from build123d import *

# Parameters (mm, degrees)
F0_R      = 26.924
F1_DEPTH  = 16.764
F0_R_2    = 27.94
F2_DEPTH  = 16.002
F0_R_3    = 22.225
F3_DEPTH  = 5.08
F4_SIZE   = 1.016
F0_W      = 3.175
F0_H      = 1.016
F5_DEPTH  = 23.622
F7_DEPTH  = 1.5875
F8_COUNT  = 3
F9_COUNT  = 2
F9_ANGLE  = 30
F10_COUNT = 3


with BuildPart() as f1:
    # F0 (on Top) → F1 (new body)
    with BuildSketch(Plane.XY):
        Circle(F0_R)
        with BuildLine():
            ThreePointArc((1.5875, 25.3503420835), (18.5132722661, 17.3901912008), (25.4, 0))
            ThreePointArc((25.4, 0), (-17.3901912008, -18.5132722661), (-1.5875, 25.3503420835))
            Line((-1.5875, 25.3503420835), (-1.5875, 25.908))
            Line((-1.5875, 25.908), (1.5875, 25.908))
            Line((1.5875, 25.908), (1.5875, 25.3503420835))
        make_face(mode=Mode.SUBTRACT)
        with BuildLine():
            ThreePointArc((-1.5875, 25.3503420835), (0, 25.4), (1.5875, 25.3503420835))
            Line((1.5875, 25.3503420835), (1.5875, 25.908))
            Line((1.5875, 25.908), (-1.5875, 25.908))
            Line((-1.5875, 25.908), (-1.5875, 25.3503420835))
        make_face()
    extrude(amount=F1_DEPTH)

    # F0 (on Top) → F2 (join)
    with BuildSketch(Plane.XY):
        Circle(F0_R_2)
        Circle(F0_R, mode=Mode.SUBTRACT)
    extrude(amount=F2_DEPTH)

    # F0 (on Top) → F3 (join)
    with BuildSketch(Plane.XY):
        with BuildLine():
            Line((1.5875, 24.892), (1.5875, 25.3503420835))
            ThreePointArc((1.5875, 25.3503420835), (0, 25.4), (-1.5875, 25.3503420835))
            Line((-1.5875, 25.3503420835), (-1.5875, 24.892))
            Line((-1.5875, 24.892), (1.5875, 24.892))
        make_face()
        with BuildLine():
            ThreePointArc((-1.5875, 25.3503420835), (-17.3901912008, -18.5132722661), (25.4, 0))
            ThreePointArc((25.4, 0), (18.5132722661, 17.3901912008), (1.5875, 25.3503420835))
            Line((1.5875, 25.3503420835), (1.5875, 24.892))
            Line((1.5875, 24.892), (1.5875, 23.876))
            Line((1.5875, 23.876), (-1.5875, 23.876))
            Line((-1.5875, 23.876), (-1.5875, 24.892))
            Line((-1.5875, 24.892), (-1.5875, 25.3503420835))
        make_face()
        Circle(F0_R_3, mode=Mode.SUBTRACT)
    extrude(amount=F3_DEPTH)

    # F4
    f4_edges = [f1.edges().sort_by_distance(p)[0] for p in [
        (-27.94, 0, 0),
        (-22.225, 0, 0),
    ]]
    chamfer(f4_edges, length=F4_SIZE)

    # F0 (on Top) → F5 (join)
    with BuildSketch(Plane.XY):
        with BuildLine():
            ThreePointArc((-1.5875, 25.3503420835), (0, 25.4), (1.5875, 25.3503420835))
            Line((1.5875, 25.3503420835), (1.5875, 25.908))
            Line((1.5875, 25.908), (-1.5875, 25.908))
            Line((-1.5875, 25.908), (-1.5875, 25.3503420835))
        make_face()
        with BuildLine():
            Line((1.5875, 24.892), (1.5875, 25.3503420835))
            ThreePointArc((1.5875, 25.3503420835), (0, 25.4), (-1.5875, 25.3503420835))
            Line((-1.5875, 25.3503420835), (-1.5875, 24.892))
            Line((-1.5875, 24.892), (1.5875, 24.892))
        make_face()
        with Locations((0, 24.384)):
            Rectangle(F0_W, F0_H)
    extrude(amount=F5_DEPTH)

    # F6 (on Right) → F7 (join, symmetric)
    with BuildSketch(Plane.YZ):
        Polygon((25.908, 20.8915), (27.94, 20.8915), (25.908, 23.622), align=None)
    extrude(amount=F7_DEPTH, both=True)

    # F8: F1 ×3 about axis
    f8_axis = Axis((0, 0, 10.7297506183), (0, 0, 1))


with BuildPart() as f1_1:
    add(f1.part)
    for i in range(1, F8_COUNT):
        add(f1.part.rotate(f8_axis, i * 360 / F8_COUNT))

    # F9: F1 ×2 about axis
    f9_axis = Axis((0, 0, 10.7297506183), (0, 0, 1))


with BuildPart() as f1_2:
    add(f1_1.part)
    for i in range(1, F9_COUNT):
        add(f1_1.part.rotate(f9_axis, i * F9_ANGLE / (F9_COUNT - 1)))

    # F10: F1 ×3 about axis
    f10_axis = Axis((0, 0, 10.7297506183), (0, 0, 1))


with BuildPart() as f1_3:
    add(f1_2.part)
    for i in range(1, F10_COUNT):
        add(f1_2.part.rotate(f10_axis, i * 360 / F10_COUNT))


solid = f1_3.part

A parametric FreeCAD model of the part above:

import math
import FreeCAD as App
import Part
import Sketcher
from FreeCAD import Vector
Q = App.Units.Quantity


def edges_at(feature, points):
    """Names of the edges that pass closest to the given points."""
    edges = feature.Shape.Edges
    near = lambda p: min(range(len(edges)), key=lambda i: edges[i].distToShape(Part.Vertex(*p))[0])
    return sorted({f"Edge{near(p) + 1}" for p in points})


def add_polygon(sketch, points):
    """Adds a closed chain of lines whose ends are joined by coincident constraints."""
    first, n = sketch.GeometryCount, len(points)
    for a, b in zip(points, points[1:] + points[:1]):
        sketch.addGeometry(Part.LineSegment(App.Vector(*a, 0), App.Vector(*b, 0)), False)
    for i in range(n):
        sketch.addConstraint(Sketcher.Constraint("Coincident", first + i, 2, first + (i + 1) % n, 1))

doc = App.newDocument("Part")
body = doc.addObject("PartDesign::Body", "Body")

# Sketch on XY plane
sketch1 = doc.addObject("Sketcher::SketchObject", "Sketch")
body.addObject(sketch1)
sketch1.AttachmentSupport = (doc.XY_Plane, [""])
sketch1.MapMode = "FlatFace"
sketch1.addGeometry(Part.Circle(Vector(0, 0, 0), Vector(0, 0, 1), 26.924), False)
sketch1.addGeometry(Part.ArcOfCircle(Part.Circle(Vector(0, 0, 0), Vector(0, 0, 1), 25.4), math.radians(93.583322), math.radians(360)), False)
sketch1.addGeometry(Part.ArcOfCircle(Part.Circle(Vector(0, 0, 0), Vector(0, 0, 1), 25.4), math.radians(86.416678), math.radians(93.583322)), False)
sketch1.addGeometry(Part.ArcOfCircle(Part.Circle(Vector(0, 0, 0), Vector(0, 0, 1), 25.4), math.radians(0), math.radians(86.416678)), False)
sketch1.addConstraint(Sketcher.Constraint("Tangent", 1, 1, 2, 2))
sketch1.addConstraint(Sketcher.Constraint("Tangent", 2, 1, 3, 2))
sketch1.addConstraint(Sketcher.Constraint("Tangent", 3, 1, 1, 2))
sketch1.addConstraint(Sketcher.Constraint("Coincident", 0, 3, -1, 1))
sketch1.addConstraint(Sketcher.Constraint("Coincident", 1, 3, -1, 1))
sketch1.addConstraint(Sketcher.Constraint("PointOnObject", 3, 1, -1))
sketch1.addConstraint(Sketcher.Constraint("Horizontal", 1, 1, 2, 1))
sketch1.addConstraint(Sketcher.Constraint("Radius", 1, Q("1 in")))
sketch1.addConstraint(Sketcher.Constraint("Diameter", 0, Q("2.12 in")))
sketch1.addConstraint(Sketcher.Constraint("DistanceX", 1, 1, -1, 1, Q("0.0625 in")))
pad1 = doc.addObject("PartDesign::Pad", "Pad")
body.addObject(pad1)
pad1.Profile = sketch1
pad1.Length = Q("0.66 in")

# Sketch on XY plane
sketch2 = doc.addObject("Sketcher::SketchObject", "Sketch001")
body.addObject(sketch2)
sketch2.AttachmentSupport = (doc.XY_Plane, [""])
sketch2.MapMode = "FlatFace"
sketch2.addGeometry(Part.Circle(Vector(0, 0, 0), Vector(0, 0, 1), 27.94), False)
sketch2.addGeometry(Part.Circle(Vector(0, 0, 0), Vector(0, 0, 1), 26.924), False)
sketch2.addConstraint(Sketcher.Constraint("Coincident", 0, 3, -1, 1))
sketch2.addConstraint(Sketcher.Constraint("Coincident", 1, 3, -1, 1))
sketch2.addConstraint(Sketcher.Constraint("Diameter", 0, Q("2.2 in")))
sketch2.addConstraint(Sketcher.Constraint("Diameter", 1, Q("2.12 in")))
pad2 = doc.addObject("PartDesign::Pad", "Pad001")
body.addObject(pad2)
pad2.Profile = sketch2
pad2.Length = Q("0.63 in")

# Sketch on XY plane
sketch3 = doc.addObject("Sketcher::SketchObject", "Sketch002")
body.addObject(sketch3)
sketch3.AttachmentSupport = (doc.XY_Plane, [""])
sketch3.MapMode = "FlatFace"
sketch3.addGeometry(Part.ArcOfCircle(Part.Circle(Vector(0, 0, 0), Vector(0, 0, 1), 25.4), math.radians(86.416678), math.radians(93.583322)), False)  # 0
sketch3.addGeometry(Part.ArcOfCircle(Part.Circle(Vector(0, 0, 0), Vector(0, 0, 1), 25.4), math.radians(93.583322), math.radians(360)), False)  # 1
sketch3.addGeometry(Part.ArcOfCircle(Part.Circle(Vector(0, 0, 0), Vector(0, 0, 1), 25.4), math.radians(0), math.radians(86.416678)), False)  # 2
sketch3.addGeometry(Part.Circle(Vector(0, 0, 0), Vector(0, 0, 1), 22.225), False)  # 3
add_polygon(sketch3, [(-1.5875, 24.892), (1.5875, 24.892), (1.5875, 23.876), (-1.5875, 23.876)])  # lines 4-7
sketch3.addConstraint(Sketcher.Constraint("Tangent", 0, 2, 1, 1))
sketch3.addConstraint(Sketcher.Constraint("Tangent", 1, 2, 2, 1))
sketch3.addConstraint(Sketcher.Constraint("Tangent", 2, 2, 0, 1))
sketch3.addConstraint(Sketcher.Constraint("Horizontal", 4))
sketch3.addConstraint(Sketcher.Constraint("Vertical", 5))
sketch3.addConstraint(Sketcher.Constraint("Horizontal", 6))
sketch3.addConstraint(Sketcher.Constraint("Vertical", 7))
sketch3.addConstraint(Sketcher.Constraint("Coincident", 0, 3, -1, 1))
sketch3.addConstraint(Sketcher.Constraint("Coincident", 3, 3, -1, 1))
sketch3.addConstraint(Sketcher.Constraint("PointOnObject", 1, 2, -1))
sketch3.addConstraint(Sketcher.Constraint("Horizontal", 0, 2, 2, 2))
sketch3.addConstraint(Sketcher.Constraint("Vertical", 2, 2, 4, 2))
sketch3.addConstraint(Sketcher.Constraint("Vertical", 0, 2, 6, 2))
sketch3.addConstraint(Sketcher.Constraint("Radius", 0, Q("1 in")))
sketch3.addConstraint(Sketcher.Constraint("Diameter", 3, Q("1.75 in")))
sketch3.addConstraint(Sketcher.Constraint("DistanceY", 5, 2, 5, 1, Q("0.04 in")))
sketch3.addConstraint(Sketcher.Constraint("DistanceX", 4, 1, 4, 2, Q("0.125 in")))
sketch3.addConstraint(Sketcher.Constraint("DistanceY", -1, 1, 4, 2, Q("0.98 in")))
pad3 = doc.addObject("PartDesign::Pad", "Pad002")
body.addObject(pad3)
pad3.Profile = sketch3
pad3.Length = Q("0.2 in")
doc.recompute()

chamfer = doc.addObject("PartDesign::Chamfer", "Chamfer")
body.addObject(chamfer)
chamfer.Base = (pad3, edges_at(pad3, [(-27.94, 0, 0), (-22.225, 0, 0)]))
chamfer.Size = Q("0.04 in")

# Sketch on XY plane
sketch4 = doc.addObject("Sketcher::SketchObject", "Sketch003")
body.addObject(sketch4)
sketch4.AttachmentSupport = (doc.XY_Plane, [""])
sketch4.MapMode = "FlatFace"
add_polygon(sketch4, [(1.5875, 25.908), (-1.5875, 25.908), (-1.5875, 23.876), (1.5875, 23.876)])  # lines 0-3
sketch4.addConstraint(Sketcher.Constraint("Horizontal", 0))
sketch4.addConstraint(Sketcher.Constraint("Vertical", 1))
sketch4.addConstraint(Sketcher.Constraint("Horizontal", 2))
sketch4.addConstraint(Sketcher.Constraint("Vertical", 3))
sketch4.addConstraint(Sketcher.Constraint("DistanceY", 1, 2, 1, 1, Q("0.08 in")))
sketch4.addConstraint(Sketcher.Constraint("DistanceX", 0, 2, 0, 1, Q("0.125 in")))
sketch4.addConstraint(Sketcher.Constraint("DistanceY", -1, 1, 0, 2, Q("1.02 in")))
sketch4.addConstraint(Sketcher.Constraint("DistanceX", 0, 2, -1, 1, Q("0.0625 in")))
pad4 = doc.addObject("PartDesign::Pad", "Pad003")
body.addObject(pad4)
pad4.Profile = sketch4
pad4.Length = Q("0.93 in")

# Sketch on YZ plane
sketch5 = doc.addObject("Sketcher::SketchObject", "Sketch004")
body.addObject(sketch5)
sketch5.AttachmentSupport = (doc.YZ_Plane, [""])
sketch5.MapMode = "FlatFace"
add_polygon(sketch5, [(25.908, 20.8915), (27.94, 20.8915), (25.908, 23.622)])  # lines 0-2
sketch5.addConstraint(Sketcher.Constraint("Horizontal", 0))
sketch5.addConstraint(Sketcher.Constraint("Vertical", 2))
sketch5.addConstraint(Sketcher.Constraint("DistanceX", 0, 1, 0, 2, Q("0.08 in")))
sketch5.addConstraint(Sketcher.Constraint("DistanceX", -1, 1, 0, 2, Q("1.1 in")))
sketch5.addConstraint(Sketcher.Constraint("DistanceY", -1, 1, 1, 2, Q("0.93 in")))
sketch5.addConstraint(Sketcher.Constraint("DistanceY", 2, 2, 2, 1, Q("0.1075 in")))
pad5 = doc.addObject("PartDesign::Pad", "Pad004")
body.addObject(pad5)
pad5.Profile = sketch5
pad5.Length = Q("0.125 in")
pad5.Midplane = True
body2 = doc.addObject("PartDesign::Body", "Body001")
doc.recompute()

body2.BaseFeature = body
doc.recompute()

body3 = doc.addObject("PartDesign::Body", "Body002")
body3.BaseFeature = body
body3.Placement = App.Placement(Vector(0, 0, 0), App.Rotation(Vector(0, 0, 1), 120))
boolean = doc.addObject("PartDesign::Boolean", "Boolean")
body2.addObject(boolean)
boolean.Type = "Fuse"
boolean.addObjects([body3])
doc.recompute()

body.Placement = App.Placement(Vector(0, 0, 0), App.Rotation(Vector(0, 0, 1), 240))
boolean2 = doc.addObject("PartDesign::Boolean", "Boolean001")
body2.addObject(boolean2)
boolean2.Type = "Fuse"
boolean2.addObjects([body])
body4 = doc.addObject("PartDesign::Body", "Body003")
doc.recompute()

body4.BaseFeature = body2
doc.recompute()

body2.Placement = App.Placement(Vector(0, 0, 0), App.Rotation(Vector(0, 0, 1), 30))
boolean3 = doc.addObject("PartDesign::Boolean", "Boolean002")
body4.addObject(boolean3)
boolean3.Type = "Fuse"
boolean3.addObjects([body2])
body5 = doc.addObject("PartDesign::Body", "Body004")
doc.recompute()

body5.BaseFeature = body4
doc.recompute()

body6 = doc.addObject("PartDesign::Body", "Body005")
body6.BaseFeature = body4
body6.Placement = App.Placement(Vector(0, 0, 0), App.Rotation(Vector(0, 0, 1), 120))
boolean4 = doc.addObject("PartDesign::Boolean", "Boolean003")
body5.addObject(boolean4)
boolean4.Type = "Fuse"
boolean4.addObjects([body6])
doc.recompute()

body4.Placement = App.Placement(Vector(0, 0, 0), App.Rotation(Vector(0, 0, 1), 240))
boolean5 = doc.addObject("PartDesign::Boolean", "Boolean004")
body5.addObject(boolean5)
boolean5.Type = "Fuse"
boolean5.addObjects([body4])

doc.recompute()
